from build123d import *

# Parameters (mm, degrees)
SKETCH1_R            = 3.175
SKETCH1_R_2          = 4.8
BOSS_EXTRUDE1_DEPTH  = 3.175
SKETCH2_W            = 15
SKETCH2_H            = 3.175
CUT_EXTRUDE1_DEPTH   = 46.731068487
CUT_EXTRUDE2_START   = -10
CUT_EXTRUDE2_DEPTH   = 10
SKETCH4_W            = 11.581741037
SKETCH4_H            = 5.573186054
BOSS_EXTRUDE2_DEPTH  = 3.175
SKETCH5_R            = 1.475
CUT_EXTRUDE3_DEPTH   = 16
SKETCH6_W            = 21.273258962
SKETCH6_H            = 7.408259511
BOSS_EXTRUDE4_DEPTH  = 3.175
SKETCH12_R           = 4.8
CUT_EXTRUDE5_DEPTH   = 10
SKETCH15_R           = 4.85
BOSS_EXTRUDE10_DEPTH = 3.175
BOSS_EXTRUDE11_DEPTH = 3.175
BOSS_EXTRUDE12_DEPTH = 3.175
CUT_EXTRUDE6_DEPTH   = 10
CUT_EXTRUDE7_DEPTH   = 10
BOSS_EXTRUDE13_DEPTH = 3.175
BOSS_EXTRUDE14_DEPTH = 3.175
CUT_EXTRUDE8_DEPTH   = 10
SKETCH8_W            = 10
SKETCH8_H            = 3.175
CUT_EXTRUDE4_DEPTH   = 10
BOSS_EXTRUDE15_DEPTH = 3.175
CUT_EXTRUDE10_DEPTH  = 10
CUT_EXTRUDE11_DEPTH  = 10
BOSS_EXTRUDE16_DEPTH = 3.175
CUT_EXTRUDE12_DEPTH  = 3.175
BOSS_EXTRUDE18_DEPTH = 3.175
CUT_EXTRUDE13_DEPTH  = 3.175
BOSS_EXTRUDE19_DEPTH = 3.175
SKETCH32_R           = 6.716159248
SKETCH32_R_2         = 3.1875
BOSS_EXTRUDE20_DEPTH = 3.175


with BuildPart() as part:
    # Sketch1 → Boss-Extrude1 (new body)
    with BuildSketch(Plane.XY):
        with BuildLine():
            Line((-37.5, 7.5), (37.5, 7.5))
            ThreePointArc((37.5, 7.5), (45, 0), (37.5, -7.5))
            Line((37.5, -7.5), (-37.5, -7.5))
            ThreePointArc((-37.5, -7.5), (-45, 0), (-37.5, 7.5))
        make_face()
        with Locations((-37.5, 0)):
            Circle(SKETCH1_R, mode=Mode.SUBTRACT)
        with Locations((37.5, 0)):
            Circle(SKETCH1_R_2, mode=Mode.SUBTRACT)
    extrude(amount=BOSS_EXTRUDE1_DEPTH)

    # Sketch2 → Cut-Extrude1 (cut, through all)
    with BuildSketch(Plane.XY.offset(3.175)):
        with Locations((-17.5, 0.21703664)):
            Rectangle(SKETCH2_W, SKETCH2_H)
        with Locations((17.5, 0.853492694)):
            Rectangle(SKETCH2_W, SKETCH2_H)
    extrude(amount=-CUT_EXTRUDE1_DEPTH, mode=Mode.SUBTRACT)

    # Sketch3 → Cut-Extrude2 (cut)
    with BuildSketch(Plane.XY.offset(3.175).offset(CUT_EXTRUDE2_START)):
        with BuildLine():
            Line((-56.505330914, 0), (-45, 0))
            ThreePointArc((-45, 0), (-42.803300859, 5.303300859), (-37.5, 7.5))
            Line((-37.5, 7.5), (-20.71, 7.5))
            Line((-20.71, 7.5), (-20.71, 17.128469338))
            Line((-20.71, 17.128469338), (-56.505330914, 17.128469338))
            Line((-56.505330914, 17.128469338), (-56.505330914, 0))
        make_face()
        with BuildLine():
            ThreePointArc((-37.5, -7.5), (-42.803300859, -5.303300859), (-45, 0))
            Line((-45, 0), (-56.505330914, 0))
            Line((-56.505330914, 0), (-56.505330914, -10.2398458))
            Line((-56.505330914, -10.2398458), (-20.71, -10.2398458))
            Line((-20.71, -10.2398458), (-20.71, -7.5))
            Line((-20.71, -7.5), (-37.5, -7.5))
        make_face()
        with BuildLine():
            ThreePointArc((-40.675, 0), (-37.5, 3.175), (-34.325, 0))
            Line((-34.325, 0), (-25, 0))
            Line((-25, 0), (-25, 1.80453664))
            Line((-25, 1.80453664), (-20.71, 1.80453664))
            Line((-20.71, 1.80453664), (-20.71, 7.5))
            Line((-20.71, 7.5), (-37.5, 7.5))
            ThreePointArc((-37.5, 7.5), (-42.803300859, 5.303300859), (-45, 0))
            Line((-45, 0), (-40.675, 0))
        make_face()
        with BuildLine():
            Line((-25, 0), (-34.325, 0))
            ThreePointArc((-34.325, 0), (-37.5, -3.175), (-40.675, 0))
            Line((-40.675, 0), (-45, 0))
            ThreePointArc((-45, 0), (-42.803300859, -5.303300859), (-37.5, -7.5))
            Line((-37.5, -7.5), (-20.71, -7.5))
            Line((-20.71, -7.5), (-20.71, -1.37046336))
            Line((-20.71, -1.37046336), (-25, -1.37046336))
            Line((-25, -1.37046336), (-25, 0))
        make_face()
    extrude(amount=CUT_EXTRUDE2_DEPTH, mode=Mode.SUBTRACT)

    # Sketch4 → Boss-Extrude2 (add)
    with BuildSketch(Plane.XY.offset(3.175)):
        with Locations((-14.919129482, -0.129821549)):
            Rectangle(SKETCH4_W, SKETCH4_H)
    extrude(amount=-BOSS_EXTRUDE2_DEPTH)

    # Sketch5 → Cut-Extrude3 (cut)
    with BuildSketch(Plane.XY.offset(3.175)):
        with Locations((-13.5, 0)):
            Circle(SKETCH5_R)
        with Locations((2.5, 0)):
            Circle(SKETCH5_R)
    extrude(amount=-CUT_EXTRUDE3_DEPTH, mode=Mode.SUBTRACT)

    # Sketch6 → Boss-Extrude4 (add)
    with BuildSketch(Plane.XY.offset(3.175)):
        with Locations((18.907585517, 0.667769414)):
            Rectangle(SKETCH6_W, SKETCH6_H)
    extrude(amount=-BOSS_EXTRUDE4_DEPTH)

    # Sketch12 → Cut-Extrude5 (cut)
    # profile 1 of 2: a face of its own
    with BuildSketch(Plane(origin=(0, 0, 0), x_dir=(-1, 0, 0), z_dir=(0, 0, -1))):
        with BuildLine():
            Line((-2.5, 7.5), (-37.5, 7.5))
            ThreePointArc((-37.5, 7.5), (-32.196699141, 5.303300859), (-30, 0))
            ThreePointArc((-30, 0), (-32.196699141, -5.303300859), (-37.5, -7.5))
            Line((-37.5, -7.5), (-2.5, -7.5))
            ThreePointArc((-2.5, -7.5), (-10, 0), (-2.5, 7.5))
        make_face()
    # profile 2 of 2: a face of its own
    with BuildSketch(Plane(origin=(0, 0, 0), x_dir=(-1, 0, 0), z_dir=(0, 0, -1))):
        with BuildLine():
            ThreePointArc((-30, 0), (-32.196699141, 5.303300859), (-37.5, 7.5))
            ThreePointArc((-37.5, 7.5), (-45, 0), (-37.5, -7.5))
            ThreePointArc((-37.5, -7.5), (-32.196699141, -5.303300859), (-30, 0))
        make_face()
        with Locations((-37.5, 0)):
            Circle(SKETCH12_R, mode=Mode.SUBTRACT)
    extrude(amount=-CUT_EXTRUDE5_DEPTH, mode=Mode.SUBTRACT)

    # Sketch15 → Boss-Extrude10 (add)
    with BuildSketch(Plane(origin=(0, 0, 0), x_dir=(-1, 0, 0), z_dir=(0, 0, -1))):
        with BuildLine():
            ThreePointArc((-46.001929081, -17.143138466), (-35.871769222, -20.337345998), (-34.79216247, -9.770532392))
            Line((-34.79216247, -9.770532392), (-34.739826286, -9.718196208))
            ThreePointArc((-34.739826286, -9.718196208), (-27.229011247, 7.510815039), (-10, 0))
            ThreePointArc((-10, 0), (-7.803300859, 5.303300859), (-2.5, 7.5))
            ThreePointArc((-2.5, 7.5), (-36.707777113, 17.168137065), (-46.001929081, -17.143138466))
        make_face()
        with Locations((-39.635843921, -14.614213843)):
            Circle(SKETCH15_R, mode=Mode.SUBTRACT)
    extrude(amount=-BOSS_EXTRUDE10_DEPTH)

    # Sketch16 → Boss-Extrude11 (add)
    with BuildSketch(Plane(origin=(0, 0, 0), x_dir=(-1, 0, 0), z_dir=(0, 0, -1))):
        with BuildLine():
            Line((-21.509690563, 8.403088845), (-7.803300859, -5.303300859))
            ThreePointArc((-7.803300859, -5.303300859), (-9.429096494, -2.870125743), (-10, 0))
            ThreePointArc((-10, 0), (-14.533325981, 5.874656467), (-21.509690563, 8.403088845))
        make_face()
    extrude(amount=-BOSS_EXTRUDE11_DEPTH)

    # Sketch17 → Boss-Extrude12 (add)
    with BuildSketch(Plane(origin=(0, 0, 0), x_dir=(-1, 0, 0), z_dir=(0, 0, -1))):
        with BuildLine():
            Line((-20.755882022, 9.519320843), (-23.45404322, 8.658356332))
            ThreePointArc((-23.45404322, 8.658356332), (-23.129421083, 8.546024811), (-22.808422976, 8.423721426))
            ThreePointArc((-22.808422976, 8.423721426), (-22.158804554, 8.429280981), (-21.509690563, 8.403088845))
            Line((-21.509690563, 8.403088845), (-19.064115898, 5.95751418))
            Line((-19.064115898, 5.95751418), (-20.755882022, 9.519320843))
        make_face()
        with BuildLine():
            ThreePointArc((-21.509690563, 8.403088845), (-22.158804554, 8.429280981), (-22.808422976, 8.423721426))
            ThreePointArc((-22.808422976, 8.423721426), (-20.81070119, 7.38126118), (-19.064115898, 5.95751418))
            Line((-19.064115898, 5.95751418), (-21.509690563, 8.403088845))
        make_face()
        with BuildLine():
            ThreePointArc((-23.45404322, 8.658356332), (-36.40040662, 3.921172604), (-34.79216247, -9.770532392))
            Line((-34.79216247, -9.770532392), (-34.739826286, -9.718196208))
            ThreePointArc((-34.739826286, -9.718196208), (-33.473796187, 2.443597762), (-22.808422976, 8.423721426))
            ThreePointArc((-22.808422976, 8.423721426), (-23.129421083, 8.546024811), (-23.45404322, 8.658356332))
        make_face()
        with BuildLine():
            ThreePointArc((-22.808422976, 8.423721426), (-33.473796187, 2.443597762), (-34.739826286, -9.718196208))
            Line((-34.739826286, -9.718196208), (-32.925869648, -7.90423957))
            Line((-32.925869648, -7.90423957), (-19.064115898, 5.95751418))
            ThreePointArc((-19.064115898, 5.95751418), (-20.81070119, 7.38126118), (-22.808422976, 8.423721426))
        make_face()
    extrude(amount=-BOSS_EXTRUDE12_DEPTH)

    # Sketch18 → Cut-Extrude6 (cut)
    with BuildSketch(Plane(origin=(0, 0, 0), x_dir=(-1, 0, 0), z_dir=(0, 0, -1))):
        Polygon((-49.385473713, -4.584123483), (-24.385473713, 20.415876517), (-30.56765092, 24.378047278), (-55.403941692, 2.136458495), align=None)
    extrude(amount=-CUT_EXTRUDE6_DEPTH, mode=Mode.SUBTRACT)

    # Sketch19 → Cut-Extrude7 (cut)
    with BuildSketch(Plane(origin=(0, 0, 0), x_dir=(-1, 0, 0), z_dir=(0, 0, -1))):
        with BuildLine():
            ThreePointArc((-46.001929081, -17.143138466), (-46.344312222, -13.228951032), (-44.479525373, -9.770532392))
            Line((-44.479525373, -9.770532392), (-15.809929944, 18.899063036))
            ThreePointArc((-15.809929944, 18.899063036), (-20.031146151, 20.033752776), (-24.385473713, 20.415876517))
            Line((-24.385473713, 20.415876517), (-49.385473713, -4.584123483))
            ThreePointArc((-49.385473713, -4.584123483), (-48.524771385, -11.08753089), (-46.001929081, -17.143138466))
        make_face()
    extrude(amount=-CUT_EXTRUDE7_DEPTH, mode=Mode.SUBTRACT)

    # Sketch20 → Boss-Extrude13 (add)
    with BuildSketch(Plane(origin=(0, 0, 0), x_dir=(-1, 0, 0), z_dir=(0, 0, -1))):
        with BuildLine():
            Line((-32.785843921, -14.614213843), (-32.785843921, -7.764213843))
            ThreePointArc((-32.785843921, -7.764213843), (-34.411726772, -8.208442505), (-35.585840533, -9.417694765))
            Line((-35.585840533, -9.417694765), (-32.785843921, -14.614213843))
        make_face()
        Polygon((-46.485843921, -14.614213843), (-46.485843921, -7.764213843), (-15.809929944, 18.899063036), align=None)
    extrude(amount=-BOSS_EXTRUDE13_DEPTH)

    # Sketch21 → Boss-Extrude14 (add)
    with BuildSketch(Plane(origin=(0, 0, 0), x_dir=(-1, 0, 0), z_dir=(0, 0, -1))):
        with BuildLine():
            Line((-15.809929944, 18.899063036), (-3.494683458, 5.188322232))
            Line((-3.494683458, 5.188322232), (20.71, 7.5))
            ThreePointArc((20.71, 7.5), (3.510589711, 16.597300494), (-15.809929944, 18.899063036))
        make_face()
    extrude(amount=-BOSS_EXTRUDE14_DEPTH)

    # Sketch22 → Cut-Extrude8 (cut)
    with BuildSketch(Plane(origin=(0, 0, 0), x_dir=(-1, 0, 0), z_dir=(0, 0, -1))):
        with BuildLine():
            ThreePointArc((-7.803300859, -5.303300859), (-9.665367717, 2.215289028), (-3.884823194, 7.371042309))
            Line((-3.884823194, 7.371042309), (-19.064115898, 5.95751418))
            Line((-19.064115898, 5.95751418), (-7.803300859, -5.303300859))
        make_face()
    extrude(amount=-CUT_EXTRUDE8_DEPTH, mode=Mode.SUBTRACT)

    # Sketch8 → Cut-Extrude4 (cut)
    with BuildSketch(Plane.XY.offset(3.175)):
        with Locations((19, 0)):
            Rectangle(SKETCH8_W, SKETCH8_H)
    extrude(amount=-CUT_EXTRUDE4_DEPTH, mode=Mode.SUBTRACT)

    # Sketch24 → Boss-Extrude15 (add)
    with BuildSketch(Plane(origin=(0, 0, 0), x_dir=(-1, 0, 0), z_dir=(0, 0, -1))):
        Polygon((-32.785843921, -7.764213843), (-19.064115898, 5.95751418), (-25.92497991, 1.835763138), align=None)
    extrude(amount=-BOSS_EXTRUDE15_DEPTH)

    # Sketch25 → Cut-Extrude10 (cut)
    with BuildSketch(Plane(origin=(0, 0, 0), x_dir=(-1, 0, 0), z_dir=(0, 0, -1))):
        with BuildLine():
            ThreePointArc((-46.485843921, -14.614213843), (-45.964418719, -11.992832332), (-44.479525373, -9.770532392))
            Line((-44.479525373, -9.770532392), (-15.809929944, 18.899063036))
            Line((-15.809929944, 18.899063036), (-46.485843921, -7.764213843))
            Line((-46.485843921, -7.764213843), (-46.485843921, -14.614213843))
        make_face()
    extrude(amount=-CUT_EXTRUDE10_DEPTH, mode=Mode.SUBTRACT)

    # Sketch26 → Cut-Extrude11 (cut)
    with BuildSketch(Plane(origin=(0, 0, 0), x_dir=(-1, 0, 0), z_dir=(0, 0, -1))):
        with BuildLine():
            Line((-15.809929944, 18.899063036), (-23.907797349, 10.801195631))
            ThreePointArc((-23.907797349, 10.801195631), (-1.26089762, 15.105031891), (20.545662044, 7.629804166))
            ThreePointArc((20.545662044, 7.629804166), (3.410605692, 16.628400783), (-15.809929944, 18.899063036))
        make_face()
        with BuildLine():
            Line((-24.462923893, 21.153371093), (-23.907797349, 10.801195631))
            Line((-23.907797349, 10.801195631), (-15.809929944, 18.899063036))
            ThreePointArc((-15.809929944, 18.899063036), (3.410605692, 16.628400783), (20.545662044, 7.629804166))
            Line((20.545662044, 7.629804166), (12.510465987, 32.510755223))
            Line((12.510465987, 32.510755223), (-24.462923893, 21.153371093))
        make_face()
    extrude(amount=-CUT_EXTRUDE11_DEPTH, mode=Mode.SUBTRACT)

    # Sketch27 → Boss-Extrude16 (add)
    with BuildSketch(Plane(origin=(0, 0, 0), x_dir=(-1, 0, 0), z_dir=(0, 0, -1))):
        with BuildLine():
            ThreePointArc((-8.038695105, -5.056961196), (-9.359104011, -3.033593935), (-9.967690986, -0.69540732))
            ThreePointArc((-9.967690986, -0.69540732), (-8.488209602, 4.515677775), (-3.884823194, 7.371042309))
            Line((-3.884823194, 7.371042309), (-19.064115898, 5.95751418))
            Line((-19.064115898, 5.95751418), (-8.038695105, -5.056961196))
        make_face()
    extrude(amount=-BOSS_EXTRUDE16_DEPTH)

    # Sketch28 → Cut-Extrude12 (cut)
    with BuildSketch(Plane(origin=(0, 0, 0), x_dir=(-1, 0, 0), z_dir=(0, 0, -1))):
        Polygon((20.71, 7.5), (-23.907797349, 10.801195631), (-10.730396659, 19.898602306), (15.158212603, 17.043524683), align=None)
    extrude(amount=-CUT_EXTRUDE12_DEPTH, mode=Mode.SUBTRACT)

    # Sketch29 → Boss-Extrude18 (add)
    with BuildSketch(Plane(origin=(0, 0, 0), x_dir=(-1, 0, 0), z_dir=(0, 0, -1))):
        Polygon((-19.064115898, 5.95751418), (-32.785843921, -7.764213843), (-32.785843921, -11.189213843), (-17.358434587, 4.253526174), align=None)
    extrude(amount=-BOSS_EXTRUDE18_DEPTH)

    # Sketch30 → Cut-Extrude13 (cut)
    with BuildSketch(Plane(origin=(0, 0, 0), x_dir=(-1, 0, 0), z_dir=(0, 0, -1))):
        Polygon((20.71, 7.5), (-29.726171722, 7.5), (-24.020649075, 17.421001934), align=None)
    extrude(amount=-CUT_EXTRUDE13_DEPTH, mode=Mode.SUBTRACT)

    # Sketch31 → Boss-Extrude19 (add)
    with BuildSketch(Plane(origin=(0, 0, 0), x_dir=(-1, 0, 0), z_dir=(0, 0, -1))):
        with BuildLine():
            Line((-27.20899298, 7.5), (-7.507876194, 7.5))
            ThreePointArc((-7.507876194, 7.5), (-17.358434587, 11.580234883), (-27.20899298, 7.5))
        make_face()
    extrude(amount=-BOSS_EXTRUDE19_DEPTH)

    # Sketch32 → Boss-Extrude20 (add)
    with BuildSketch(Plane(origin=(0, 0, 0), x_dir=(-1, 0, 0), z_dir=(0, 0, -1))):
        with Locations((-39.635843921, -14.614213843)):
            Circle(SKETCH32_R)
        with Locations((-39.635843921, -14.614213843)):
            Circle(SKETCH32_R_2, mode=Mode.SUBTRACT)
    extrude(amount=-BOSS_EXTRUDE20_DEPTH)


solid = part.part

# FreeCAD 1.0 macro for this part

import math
import FreeCAD as App
import Part
import Sketcher
from FreeCAD import Vector
Q = App.Units.Quantity


def add_polygon(sketch, points):
    """Adds a closed chain of lines whose ends are joined by coincident constraints."""
    first, n = sketch.GeometryCount, len(points)
    for a, b in zip(points, points[1:] + points[:1]):
        sketch.addGeometry(Part.LineSegment(App.Vector(*a, 0), App.Vector(*b, 0)), False)
    for i in range(n):
        sketch.addConstraint(Sketcher.Constraint("Coincident", first + i, 2, first + (i + 1) % n, 1))

doc = App.newDocument("Part")
body = doc.addObject("PartDesign::Body", "Body")

# Sketch on XY plane
sketch1 = body.newObject("Sketcher::SketchObject", "Sketch")
sketch1.AttachmentSupport = (doc.getObject("XY_Plane"), [""])
sketch1.MapMode = "FlatFace"
sketch1.addGeometry(Part.LineSegment(Vector(37.5, 7.5, 0), Vector(-37.5, 7.5, 0)), False)
sketch1.addGeometry(Part.ArcOfCircle(Part.Circle(Vector(-37.5, 0, 0), Vector(0, 0, 1), 7.5), math.radians(90), math.radians(270)), False)
sketch1.addGeometry(Part.LineSegment(Vector(-37.5, -7.5, 0), Vector(37.5, -7.5, 0)), False)
sketch1.addGeometry(Part.ArcOfCircle(Part.Circle(Vector(37.5, 0, 0), Vector(0, 0, 1), 7.5), math.radians(-90), math.radians(90)), False)
sketch1.addGeometry(Part.Circle(Vector(37.5, 0, 0), Vector(0, 0, 1), 4.8), False)
sketch1.addGeometry(Part.Circle(Vector(-37.5, 0, 0), Vector(0, 0, 1), 3.175), False)
sketch1.addConstraint(Sketcher.Constraint("Tangent", 0, 2, 1, 1))
sketch1.addConstraint(Sketcher.Constraint("Tangent", 1, 2, 2, 1))
sketch1.addConstraint(Sketcher.Constraint("Tangent", 2, 2, 3, 1))
sketch1.addConstraint(Sketcher.Constraint("Tangent", 3, 2, 0, 1))
sketch1.addConstraint(Sketcher.Constraint("Horizontal", 0))
sketch1.addConstraint(Sketcher.Constraint("Horizontal", 2))
sketch1.addConstraint(Sketcher.Constraint("Coincident", 4, 3, 3, 3))
sketch1.addConstraint(Sketcher.Constraint("Coincident", 5, 3, 1, 3))
sketch1.addConstraint(Sketcher.Constraint("Symmetric", 1, 3, 3, 3, -1, 1))
sketch1.addConstraint(Sketcher.Constraint("Diameter", 4, 9.6))
sketch1.addConstraint(Sketcher.Constraint("Radius", 1, 7.5))
sketch1.addConstraint(Sketcher.Constraint("Diameter", 5, 6.35))
sketch1.addConstraint(Sketcher.Constraint("DistanceX", 0, 2, 0, 1, 75.0))
pad1 = body.newObject("PartDesign::Pad", "Pad")
pad1.Profile = sketch1
pad1.Length = 3.175

# Sketch on XY plane
sketch2 = body.newObject("Sketcher::SketchObject", "Sketch001")
sketch2.AttachmentSupport = (doc.getObject("XY_Plane"), [""])
sketch2.MapMode = "FlatFace"
sketch2.AttachmentOffset = App.Placement(Vector(0, 0, 3.175), App.Rotation())
add_polygon(sketch2, [(-25, 1.804537), (-25, -1.370463), (-10, -1.370463), (-10, 1.804537)])  # lines 0-3
add_polygon(sketch2, [(10, 2.440993), (10, -0.734007), (25, -0.734007), (25, 2.440993)])  # lines 4-7
sketch2.addConstraint(Sketcher.Constraint("Vertical", 0))
sketch2.addConstraint(Sketcher.Constraint("Horizontal", 1))
sketch2.addConstraint(Sketcher.Constraint("Vertical", 2))
sketch2.addConstraint(Sketcher.Constraint("Horizontal", 3))
sketch2.addConstraint(Sketcher.Constraint("Vertical", 4))
sketch2.addConstraint(Sketcher.Constraint("Horizontal", 5))
sketch2.addConstraint(Sketcher.Constraint("Vertical", 6))
sketch2.addConstraint(Sketcher.Constraint("Horizontal", 7))
sketch2.addConstraint(Sketcher.Constraint("Equal", 3, 5))
sketch2.addConstraint(Sketcher.Constraint("Equal", 2, 4))
sketch2.addConstraint(Sketcher.Constraint("DistanceX", 1, 1, 1, 2, 15.0))
sketch2.addConstraint(Sketcher.Constraint("DistanceX", 0, 2, -1, 1, 25.0))
sketch2.addConstraint(Sketcher.Constraint("DistanceX", -1, 1, 4, 2, 10.0))
sketch2.addConstraint(Sketcher.Constraint("DistanceY", 0, 2, 0, 1, 3.175))
sketch2.addConstraint(Sketcher.Constraint("DistanceY", 0, 2, -1, 1, 1.370463))
sketch2.addConstraint(Sketcher.Constraint("DistanceY", 4, 2, -1, 1, 0.734007))
pocket1 = body.newObject("PartDesign::Pocket", "Pocket")
pocket1.Profile = sketch2
pocket1.Type = "ThroughAll"

# Sketch on XY plane
sketch3 = body.newObject("Sketcher::SketchObject", "Sketch002")
sketch3.AttachmentSupport = (doc.getObject("XY_Plane"), [""])
sketch3.MapMode = "FlatFace"
sketch3.AttachmentOffset = App.Placement(Vector(0, 0, -6.825), App.Rotation())
add_polygon(sketch3, [(-20.71, 17.128469), (-56.505331, 17.128469), (-56.505331, -10.239846), (-20.71, -10.239846), (-20.71, -1.370463), (-25, -1.370463), (-25, 1.804537), (-20.71, 1.804537)])  # lines 0-7
sketch3.addGeometry(Part.Circle(Vector(-37.5, 0, 0), Vector(0, 0, 1), 3.175), False)  # 8
sketch3.addConstraint(Sketcher.Constraint("Horizontal", 0))
sketch3.addConstraint(Sketcher.Constraint("Vertical", 1))
sketch3.addConstraint(Sketcher.Constraint("Horizontal", 2))
sketch3.addConstraint(Sketcher.Constraint("Vertical", 3))
sketch3.addConstraint(Sketcher.Constraint("Horizontal", 4))
sketch3.addConstraint(Sketcher.Constraint("Vertical", 5))
sketch3.addConstraint(Sketcher.Constraint("Horizontal", 6))
sketch3.addConstraint(Sketcher.Constraint("Vertical", 7))
sketch3.addConstraint(Sketcher.Constraint("PointOnObject", 8, 3, -1))
sketch3.addConstraint(Sketcher.Constraint("Vertical", 3, 2, 6, 2))
sketch3.addConstraint(Sketcher.Constraint("Diameter", 8, 6.35))
sketch3.addConstraint(Sketcher.Constraint("DistanceX", 4, 2, -1, 1, 25.0))
sketch3.addConstraint(Sketcher.Constraint("DistanceX", 4, 2, 4, 1, 4.29))
sketch3.addConstraint(Sketcher.Constraint("DistanceX", 8, 3, -1, 1, 37.5))
sketch3.addConstraint(Sketcher.Constraint("DistanceY", 5, 1, 5, 2, 3.175))
sketch3.addConstraint(Sketcher.Constraint("DistanceX", 0, 2, 0, 1, 35.795331))
sketch3.addConstraint(Sketcher.Constraint("DistanceY", 1, 2, 1, 1, 27.368315))
sketch3.addConstraint(Sketcher.Constraint("DistanceY", 3, 1, 3, 2, 8.869382))
sketch3.addConstraint(Sketcher.Constraint("DistanceY", -1, 1, 0, 2, 17.128469))
pocket2 = body.newObject("PartDesign::Pocket", "Pocket001")
pocket2.Profile = sketch3
pocket2.Length = 10
pocket2.Reversed = True

# Sketch on XY plane
sketch4 = body.newObject("Sketcher::SketchObject", "Sketch003")
sketch4.AttachmentSupport = (doc.getObject("XY_Plane"), [""])
sketch4.MapMode = "FlatFace"
sketch4.AttachmentOffset = App.Placement(Vector(0, 0, 3.175), App.Rotation())
add_polygon(sketch4, [(-20.71, 2.656771), (-20.71, -2.916415), (-9.128259, -2.916415), (-9.128259, 2.656771)])  # lines 0-3
sketch4.addConstraint(Sketcher.Constraint("Vertical", 0))
sketch4.addConstraint(Sketcher.Constraint("Horizontal", 1))
sketch4.addConstraint(Sketcher.Constraint("Vertical", 2))
sketch4.addConstraint(Sketcher.Constraint("Horizontal", 3))
sketch4.addConstraint(Sketcher.Constraint("DistanceX", 0, 2, -1, 1, 20.71))
sketch4.addConstraint(Sketcher.Constraint("DistanceX", 1, 1, 1, 2, 11.581741))
sketch4.addConstraint(Sketcher.Constraint("DistanceY", 0, 2, 0, 1, 5.573186))
sketch4.addConstraint(Sketcher.Constraint("DistanceY", -1, 1, 2, 2, 2.656771))
pad2 = body.newObject("PartDesign::Pad", "Pad001")
pad2.Profile = sketch4
pad2.Length = 3.175
pad2.Reversed = True

# Sketch on XY plane
sketch5 = body.newObject("Sketcher::SketchObject", "Sketch004")
sketch5.AttachmentSupport = (doc.getObject("XY_Plane"), [""])
sketch5.MapMode = "FlatFace"
sketch5.AttachmentOffset = App.Placement(Vector(0, 0, 3.175), App.Rotation())
sketch5.addGeometry(Part.Circle(Vector(-13.5, 0, 0), Vector(0, 0, 1), 1.475), False)
sketch5.addGeometry(Part.Circle(Vector(2.5, 0, 0), Vector(0, 0, 1), 1.475), False)
sketch5.addConstraint(Sketcher.Constraint("Equal", 0, 1))
sketch5.addConstraint(Sketcher.Constraint("PointOnObject", 0, 3, -1))
sketch5.addConstraint(Sketcher.Constraint("PointOnObject", 1, 3, -1))
sketch5.addConstraint(Sketcher.Constraint("Diameter", 0, 2.95))
sketch5.addConstraint(Sketcher.Constraint("DistanceX", 0, 3, 1, 3, 16.0))
sketch5.addConstraint(Sketcher.Constraint("DistanceX", 0, 3, -1, 1, 13.5))
pocket3 = body.newObject("PartDesign::Pocket", "Pocket002")
pocket3.Profile = sketch5
pocket3.Length = 16

# Sketch on XY plane
sketch6 = body.newObject("Sketcher::SketchObject", "Sketch005")
sketch6.AttachmentSupport = (doc.getObject("XY_Plane"), [""])
sketch6.MapMode = "FlatFace"
sketch6.AttachmentOffset = App.Placement(Vector(0, 0, 3.175), App.Rotation())
add_polygon(sketch6, [(8.270956, 4.371899), (8.270956, -3.03636), (29.544215, -3.03636), (29.544215, 4.371899)])  # lines 0-3
sketch6.addConstraint(Sketcher.Constraint("Vertical", 0))
sketch6.addConstraint(Sketcher.Constraint("Horizontal", 1))
sketch6.addConstraint(Sketcher.Constraint("Vertical", 2))
sketch6.addConstraint(Sketcher.Constraint("Horizontal", 3))
sketch6.addConstraint(Sketcher.Constraint("DistanceX", 1, 1, 1, 2, 21.273259))
sketch6.addConstraint(Sketcher.Constraint("DistanceY", 0, 2, 0, 1, 7.40826))
sketch6.addConstraint(Sketcher.Constraint("DistanceY", -1, 1, 2, 2, 4.371899))
sketch6.addConstraint(Sketcher.Constraint("DistanceX", -1, 1, 0, 2, 8.270956))
pad3 = body.newObject("PartDesign::Pad", "Pad002")
pad3.Profile = sketch6
pad3.Length = 3.175
pad3.Reversed = True

# Sketch on XY plane
sketch7 = body.newObject("Sketcher::SketchObject", "Sketch006")
sketch7.AttachmentSupport = (doc.getObject("XY_Plane"), [""])
sketch7.MapMode = "FlatFace"
sketch7.addGeometry(Part.LineSegment(Vector(2.5, 7.5, 0), Vector(37.5, 7.5, 0)), False)
sketch7.addGeometry(Part.ArcOfCircle(Part.Circle(Vector(37.5, 0, 0), Vector(0, 0, 1), 7.5), math.radians(-90), math.radians(90)), False)
sketch7.addGeometry(Part.LineSegment(Vector(37.5, -7.5, 0), Vector(2.5, -7.5, 0)), False)
sketch7.addGeometry(Part.ArcOfCircle(Part.Circle(Vector(2.5, 0, 0), Vector(0, 0, 1), 7.5), math.radians(-90), math.radians(90)), False)
sketch7.addGeometry(Part.Circle(Vector(37.5, 0, 0), Vector(0, 0, 1), 4.8), False)
sketch7.addConstraint(Sketcher.Constraint("Tangent", 0, 2, 1, 2))
sketch7.addConstraint(Sketcher.Constraint("Tangent", 1, 1, 2, 1))
sketch7.addConstraint(Sketcher.Constraint("Tangent", 2, 2, 3, 1))
sketch7.addConstraint(Sketcher.Constraint("Tangent", 3, 2, 0, 1))
sketch7.addConstraint(Sketcher.Constraint("Horizontal", 0))
sketch7.addConstraint(Sketcher.Constraint("Horizontal", 2))
sketch7.addConstraint(Sketcher.Constraint("Coincident", 4, 3, 1, 3))
sketch7.addConstraint(Sketcher.Constraint("PointOnObject", 1, 3, -1))
sketch7.addConstraint(Sketcher.Constraint("Diameter", 4, 9.6))
sketch7.addConstraint(Sketcher.Constraint("Radius", 1, 7.5))
sketch7.addConstraint(Sketcher.Constraint("DistanceX", 0, 1, 0, 2, 35.0))
sketch7.addConstraint(Sketcher.Constraint("DistanceX", -1, 1, 1, 3, 37.5))
pocket4 = body.newObject("PartDesign::Pocket", "Pocket003")
pocket4.Profile = sketch7
pocket4.Length = 10
pocket4.Reversed = True

# Sketch on XY plane
sketch8 = body.newObject("Sketcher::SketchObject", "Sketch007")
sketch8.AttachmentSupport = (doc.getObject("XY_Plane"), [""])
sketch8.MapMode = "FlatFace"
sketch8.addGeometry(Part.ArcOfCircle(Part.Circle(Vector(39.635844, -14.614214, 0), Vector(0, 0, 1), 6.85), math.radians(135), math.radians(338.334571)), False)
sketch8.addGeometry(Part.LineSegment(Vector(34.792162, -9.770532, 0), Vector(34.739826, -9.718196, 0)), False)
sketch8.addGeometry(Part.ArcOfCircle(Part.Circle(Vector(22.369913, -4.859098, 0), Vector(0, 0, 1), 13.290056), math.radians(-21.445687), math.radians(158.554313)), False)
sketch8.addGeometry(Part.ArcOfCircle(Part.Circle(Vector(2.5, 0, 0), Vector(0, 0, 1), 7.5), math.radians(0), math.radians(90)), False)
sketch8.addGeometry(Part.ArcOfCircle(Part.Circle(Vector(24.385474, -4.584123, 0), Vector(0, 0, 1), 25), math.radians(-30.156299), math.radians(151.094597)), False)
sketch8.addGeometry(Part.Circle(Vector(39.635844, -14.614214, 0), Vector(0, 0, 1), 4.85), False)
sketch8.addConstraint(Sketcher.Constraint("Coincident", 0, 1, 1, 1))
sketch8.addConstraint(Sketcher.Constraint("Coincident", 1, 2, 2, 1))
sketch8.addConstraint(Sketcher.Constraint("Coincident", 2, 2, 3, 1))
sketch8.addConstraint(Sketcher.Constraint("Coincident", 3, 2, 4, 2))
sketch8.addConstraint(Sketcher.Constraint("Coincident", 4, 1, 0, 2))
sketch8.addConstraint(Sketcher.Constraint("Coincident", 5, 3, 0, 3))
sketch8.addConstraint(Sketcher.Constraint("PointOnObject", 3, 3, -1))
sketch8.addConstraint(Sketcher.Constraint("PointOnObject", 2, 2, -1))
sketch8.addConstraint(Sketcher.Constraint("Radius", 4, 25.0))
sketch8.addConstraint(Sketcher.Constraint("Diameter", 5, 9.7))
sketch8.addConstraint(Sketcher.Constraint("Radius", 3, 7.5))
sketch8.addConstraint(Sketcher.Constraint("Angle", 1, Q("135 deg")))
sketch8.addConstraint(Sketcher.Constraint("Radius", 0, 6.85))
sketch8.addConstraint(Sketcher.Constraint("DistanceX", -1, 1, 2, 2, 10.0))
sketch8.addConstraint(Sketcher.Constraint("DistanceX", -1, 1, 3, 2, 2.5))
sketch8.addConstraint(Sketcher.Constraint("Radius", 2, 13.290056))
sketch8.addConstraint(Sketcher.Constraint("DistanceY", 2, 3, -1, 1, 4.859098))
sketch8.addConstraint(Sketcher.Constraint("DistanceY", 1, 2, 2, 3, 4.859098))
sketch8.addConstraint(Sketcher.Constraint("DistanceX", -1, 1, 4, 1, 46.001929))
sketch8.addConstraint(Sketcher.Constraint("DistanceY", 4, 1, -1, 1, 17.143138))
sketch8.addConstraint(Sketcher.Constraint("DistanceX", 2, 3, 0, 3, 17.265931))
pad4 = body.newObject("PartDesign::Pad", "Pad003")
pad4.Profile = sketch8
pad4.Length = 3.175

# Sketch on XY plane
sketch9 = body.newObject("Sketcher::SketchObject", "Sketch008")
sketch9.AttachmentSupport = (doc.getObject("XY_Plane"), [""])
sketch9.MapMode = "FlatFace"
sketch9.addGeometry(Part.LineSegment(Vector(21.509691, 8.403089, 0), Vector(7.803301, -5.303301, 0)), False)
sketch9.addGeometry(Part.ArcOfCircle(Part.Circle(Vector(2.5, 0, 0), Vector(0, 0, 1), 7.5), math.radians(-45), math.radians(0)), False)
sketch9.addGeometry(Part.ArcOfCircle(Part.Circle(Vector(22.369913, -4.859098, 0), Vector(0, 0, 1), 13.290056), math.radians(93.711166), math.radians(158.554313)), False)
sketch9.addConstraint(Sketcher.Constraint("Tangent", 0, 2, 1, 1))
sketch9.addConstraint(Sketcher.Constraint("Coincident", 1, 2, 2, 2))
sketch9.addConstraint(Sketcher.Constraint("Coincident", 2, 1, 0, 1))
sketch9.addConstraint(Sketcher.Constraint("PointOnObject", 1, 3, -1))
sketch9.addConstraint(Sketcher.Constraint("PointOnObject", 1, 2, -1))
sketch9.addConstraint(Sketcher.Constraint("Radius", 1, 7.5))
sketch9.addConstraint(Sketcher.Constraint("Angle", 0, Q("-135 deg")))
sketch9.addConstraint(Sketcher.Constraint("DistanceX", -1, 1, 1, 2, 10.0))
sketch9.addConstraint(Sketcher.Constraint("Radius", 2, 13.290056))
sketch9.addConstraint(Sketcher.Constraint("DistanceY", 2, 3, -1, 1, 4.859098))
pad5 = body.newObject("PartDesign::Pad", "Pad004")
pad5.Profile = sketch9
pad5.Length = 3.175

# Sketch on XY plane
sketch10 = body.newObject("Sketcher::SketchObject", "Sketch009")
sketch10.AttachmentSupport = (doc.getObject("XY_Plane"), [""])
sketch10.MapMode = "FlatFace"
sketch10.addGeometry(Part.LineSegment(Vector(19.064116, 5.957514, 0), Vector(20.755882, 9.519321, 0)), False)
sketch10.addGeometry(Part.LineSegment(Vector(20.755882, 9.519321, 0), Vector(23.454043, 8.658356, 0)), False)
sketch10.addGeometry(Part.ArcOfCircle(Part.Circle(Vector(26.928139, -1.906509, 0), Vector(0, 0, 1), 11.121408), math.radians(-45), math.radians(108.202667)), False)
sketch10.addGeometry(Part.LineSegment(Vector(34.792162, -9.770532, 0), Vector(19.064116, 5.957514, 0)), False)
sketch10.addConstraint(Sketcher.Constraint("Coincident", 0, 2, 1, 1))
sketch10.addConstraint(Sketcher.Constraint("Coincident", 1, 2, 2, 2))
sketch10.addConstraint(Sketcher.Constraint("Coincident", 2, 1, 3, 1))
sketch10.addConstraint(Sketcher.Constraint("Coincident", 3, 2, 0, 1))
sketch10.addConstraint(Sketcher.Constraint("Angle", 3, Q("135 deg")))
sketch10.addConstraint(Sketcher.Constraint("Radius", 2, 11.121408))
sketch10.addConstraint(Sketcher.Constraint("DistanceX", -1, 1, 2, 3, 26.928139))
sketch10.addConstraint(Sketcher.Constraint("DistanceY", 2, 3, -1, 1, 1.906509))
sketch10.addConstraint(Sketcher.Constraint("DistanceY", -1, 1, 0, 2, 9.519321))
sketch10.addConstraint(Sketcher.Constraint("DistanceX", 0, 2, 1, 2, 2.698161))
sketch10.addConstraint(Sketcher.Constraint("DistanceX", 1, 2, 2, 1, 11.338119))
sketch10.addConstraint(Sketcher.Constraint("DistanceY", 2, 1, 1, 2, 18.428889))
sketch10.addConstraint(Sketcher.Constraint("Distance", 0, 3.943164))
pad6 = body.newObject("PartDesign::Pad", "Pad005")
pad6.Profile = sketch10
pad6.Length = 3.175

# Sketch on XY plane
sketch11 = body.newObject("Sketcher::SketchObject", "Sketch010")
sketch11.AttachmentSupport = (doc.getObject("XY_Plane"), [""])
sketch11.MapMode = "FlatFace"
add_polygon(sketch11, [(49.385474, -4.584123), (24.385474, 20.415877), (30.567651, 24.378047), (55.403942, 2.136458)])  # lines 0-3
sketch11.addConstraint(Sketcher.Constraint("Perpendicular", 2, 3))
sketch11.addConstraint(Sketcher.Constraint("Angle", 0, Q("135 deg")))
sketch11.addConstraint(Sketcher.Constraint("DistanceX", 0, 2, 3, 2, 25.0))
sketch11.addConstraint(Sketcher.Constraint("Distance", 2, 33.33961))
sketch11.addConstraint(Sketcher.Constraint("Distance", 3, 9.02154))
sketch11.addConstraint(Sketcher.Constraint("DistanceX", -1, 1, 1, 2, 30.567651))
sketch11.addConstraint(Sketcher.Constraint("DistanceX", -1, 1, 2, 2, 55.403942))
sketch11.addConstraint(Sketcher.Constraint("DistanceY", -1, 1, 2, 2, 2.136458))
pocket5 = body.newObject("PartDesign::Pocket", "Pocket004")
pocket5.Profile = sketch11
pocket5.Length = 10
pocket5.Reversed = True

# Sketch on XY plane
sketch12 = body.newObject("Sketcher::SketchObject", "Sketch011")
sketch12.AttachmentSupport = (doc.getObject("XY_Plane"), [""])
sketch12.MapMode = "FlatFace"
sketch12.addGeometry(Part.ArcOfCircle(Part.Circle(Vector(39.635844, -14.614214, 0), Vector(0, 0, 1), 6.85), math.radians(-21.665429), math.radians(45)), False)
sketch12.addGeometry(Part.LineSegment(Vector(44.479525, -9.770532, 0), Vector(15.80993, 18.899063, 0)), False)
sketch12.addGeometry(Part.ArcOfCircle(Part.Circle(Vector(24.385474, -4.584123, 0), Vector(0, 0, 1), 25), math.radians(90), math.radians(110.061083)), False)
sketch12.addGeometry(Part.LineSegment(Vector(24.385474, 20.415877, 0), Vector(49.385474, -4.584123, 0)), False)
sketch12.addGeometry(Part.ArcOfCircle(Part.Circle(Vector(24.385474, -4.584123, 0), Vector(0, 0, 1), 25), math.radians(-30.156299), math.radians(0)), False)
sketch12.addConstraint(Sketcher.Constraint("Tangent", 0, 2, 1, 1))
sketch12.addConstraint(Sketcher.Constraint("Coincident", 1, 2, 2, 2))
sketch12.addConstraint(Sketcher.Constraint("Coincident", 2, 1, 3, 1))
sketch12.addConstraint(Sketcher.Constraint("Coincident", 3, 2, 4, 2))
sketch12.addConstraint(Sketcher.Constraint("Coincident", 4, 1, 0, 1))
sketch12.addConstraint(Sketcher.Constraint("Coincident", 4, 3, 2, 3))
sketch12.addConstraint(Sketcher.Constraint("Equal", 2, 4))
sketch12.addConstraint(Sketcher.Constraint("Parallel", 1, 3))
sketch12.addConstraint(Sketcher.Constraint("Horizontal", 4, 3, 3, 2))
sketch12.addConstraint(Sketcher.Constraint("Vertical", 4, 3, 2, 1))
sketch12.addConstraint(Sketcher.Constraint("Radius", 2, 25.0))
sketch12.addConstraint(Sketcher.Constraint("Radius", 0, 6.85))
sketch12.addConstraint(Sketcher.Constraint("Distance", 1, 40.544931))
sketch12.addConstraint(Sketcher.Constraint("DistanceX", -1, 1, 1, 2, 15.80993))
sketch12.addConstraint(Sketcher.Constraint("DistanceX", -1, 1, 4, 1, 46.001929))
sketch12.addConstraint(Sketcher.Constraint("DistanceY", 4, 1, -1, 1, 17.143138))
pocket6 = body.newObject("PartDesign::Pocket", "Pocket005")
pocket6.Profile = sketch12
pocket6.Length = 10
pocket6.Reversed = True

# Sketch on XY plane
sketch13 = body.newObject("Sketcher::SketchObject", "Sketch012")
sketch13.AttachmentSupport = (doc.getObject("XY_Plane"), [""])
sketch13.MapMode = "FlatFace"
sketch13.addGeometry(Part.LineSegment(Vector(32.785844, -14.614214, 0), Vector(32.785844, -7.764214, 0)), False)  # 0
sketch13.addGeometry(Part.ArcOfCircle(Part.Circle(Vector(32.785844, -10.961705, 0), Vector(0, 0, 1), 3.197491), math.radians(28.873782), math.radians(90)), False)  # 1
sketch13.addGeometry(Part.LineSegment(Vector(35.585841, -9.417695, 0), Vector(32.785844, -14.614214, 0)), False)  # 2
add_polygon(sketch13, [(46.485844, -7.764214), (46.485844, -14.614214), (15.80993, 18.899063)])  # lines 3-5
sketch13.addConstraint(Sketcher.Constraint("Coincident", 0, 2, 1, 2))
sketch13.addConstraint(Sketcher.Constraint("Coincident", 1, 1, 2, 1))
sketch13.addConstraint(Sketcher.Constraint("Coincident", 2, 2, 0, 1))
sketch13.addConstraint(Sketcher.Constraint("Vertical", 0))
sketch13.addConstraint(Sketcher.Constraint("Vertical", 3))
sketch13.addConstraint(Sketcher.Constraint("Horizontal", 2, 2, 3, 2))
sketch13.addConstraint(Sketcher.Constraint("Horizontal", 0, 2, 5, 2))
sketch13.addConstraint(Sketcher.Constraint("Vertical", 1, 3, 0, 2))
sketch13.addConstraint(Sketcher.Constraint("DistanceY", 0, 1, 0, 2, 6.85))
sketch13.addConstraint(Sketcher.Constraint("DistanceX", 2, 2, 3, 2, 13.7))
sketch13.addConstraint(Sketcher.Constraint("Radius", 1, 3.197491))
sketch13.addConstraint(Sketcher.Constraint("Distance", 5, 40.64409))
sketch13.addConstraint(Sketcher.Constraint("DistanceX", -1, 1, 1, 1, 35.585841))
sketch13.addConstraint(Sketcher.Constraint("DistanceX", -1, 1, 4, 2, 15.80993))
sketch13.addConstraint(Sketcher.Constraint("DistanceY", 1, 3, 1, 1, 1.54401))
sketch13.addConstraint(Sketcher.Constraint("DistanceY", 1, 3, -1, 1, 10.961705))
pad7 = body.newObject("PartDesign::Pad", "Pad006")
pad7.Profile = sketch13
pad7.Length = 3.175

# Sketch on XY plane
sketch14 = body.newObject("Sketcher::SketchObject", "Sketch013")
sketch14.AttachmentSupport = (doc.getObject("XY_Plane"), [""])
sketch14.MapMode = "FlatFace"
sketch14.addGeometry(Part.LineSegment(Vector(15.80993, 18.899063, 0), Vector(3.494683, 5.188322, 0)), False)
sketch14.addGeometry(Part.LineSegment(Vector(3.494683, 5.188322, 0), Vector(-20.71, 7.5, 0)), False)
sketch14.addGeometry(Part.ArcOfCircle(Part.Circle(Vector(12.334626, -34.167062, 0), Vector(0, 0, 1), 53.179803), math.radians(86.253047), math.radians(128.41665)), False)
sketch14.addConstraint(Sketcher.Constraint("Coincident", 0, 2, 1, 1))
sketch14.addConstraint(Sketcher.Constraint("Coincident", 1, 2, 2, 2))
sketch14.addConstraint(Sketcher.Constraint("Coincident", 2, 1, 0, 1))
sketch14.addConstraint(Sketcher.Constraint("DistanceY", -1, 1, 1, 2, 7.5))
sketch14.addConstraint(Sketcher.Constraint("DistanceX", 1, 2, -1, 1, 20.71))
sketch14.addConstraint(Sketcher.Constraint("Radius", 2, 53.179803))
sketch14.addConstraint(Sketcher.Constraint("Distance", 1, 24.314822))
sketch14.addConstraint(Sketcher.Constraint("DistanceX", -1, 1, 2, 1, 15.80993))
sketch14.addConstraint(Sketcher.Constraint("DistanceY", 0, 2, 2, 1, 13.710741))
sketch14.addConstraint(Sketcher.Constraint("Distance", 0, 18.429588))
pad8 = body.newObject("PartDesign::Pad", "Pad007")
pad8.Profile = sketch14
pad8.Length = 3.175

# Sketch on XY plane
sketch15 = body.newObject("Sketcher::SketchObject", "Sketch014")
sketch15.AttachmentSupport = (doc.getObject("XY_Plane"), [""])
sketch15.MapMode = "FlatFace"
sketch15.addGeometry(Part.ArcOfCircle(Part.Circle(Vector(2.5, 0, 0), Vector(0, 0, 1), 7.5), math.radians(-45), math.radians(79.359675)), False)
sketch15.addGeometry(Part.LineSegment(Vector(3.884823, 7.371042, 0), Vector(19.064116, 5.957514, 0)), False)
sketch15.addGeometry(Part.LineSegment(Vector(19.064116, 5.957514, 0), Vector(7.803301, -5.303301, 0)), False)
sketch15.addConstraint(Sketcher.Constraint("Coincident", 0, 2, 1, 1))
sketch15.addConstraint(Sketcher.Constraint("Coincident", 1, 2, 2, 1))
sketch15.addConstraint(Sketcher.Constraint("Tangent", 2, 2, 0, 1))
sketch15.addConstraint(Sketcher.Constraint("PointOnObject", 0, 3, -1))
sketch15.addConstraint(Sketcher.Constraint("Radius", 0, 7.5))
sketch15.addConstraint(Sketcher.Constraint("Angle", 2, Q("-135 deg")))
sketch15.addConstraint(Sketcher.Constraint("DistanceX", -1, 1, 0, 3, 2.5))
sketch15.addConstraint(Sketcher.Constraint("DistanceY", 1, 2, 0, 2, 1.413528))
sketch15.addConstraint(Sketcher.Constraint("Distance", 1, 15.244966))
pocket7 = body.newObject("PartDesign::Pocket", "Pocket006")
pocket7.Profile = sketch15
pocket7.Length = 10
pocket7.Reversed = True

# Sketch on XY plane
sketch16 = body.newObject("Sketcher::SketchObject", "Sketch015")
sketch16.AttachmentSupport = (doc.getObject("XY_Plane"), [""])
sketch16.MapMode = "FlatFace"
sketch16.AttachmentOffset = App.Placement(Vector(0, 0, 3.175), App.Rotation())
add_polygon(sketch16, [(14, 1.5875), (14, -1.5875), (24, -1.5875), (24, 1.5875)])  # lines 0-3
sketch16.addConstraint(Sketcher.Constraint("Vertical", 0))
sketch16.addConstraint(Sketcher.Constraint("Horizontal", 1))
sketch16.addConstraint(Sketcher.Constraint("Vertical", 2))
sketch16.addConstraint(Sketcher.Constraint("Horizontal", 3))
sketch16.addConstraint(Sketcher.Constraint("DistanceX", 1, 1, 1, 2, 10.0))
sketch16.addConstraint(Sketcher.Constraint("DistanceX", -1, 1, 0, 2, 14.0))
sketch16.addConstraint(Sketcher.Constraint("DistanceY", 0, 2, 0, 1, 3.175))
sketch16.addConstraint(Sketcher.Constraint("DistanceY", 0, 2, -1, 1, 1.5875))
pocket8 = body.newObject("PartDesign::Pocket", "Pocket007")
pocket8.Profile = sketch16
pocket8.Length = 10

# Sketch on XY plane
sketch17 = body.newObject("Sketcher::SketchObject", "Sketch016")
sketch17.AttachmentSupport = (doc.getObject("XY_Plane"), [""])
sketch17.MapMode = "FlatFace"
add_polygon(sketch17, [(32.785844, -7.764214), (19.064116, 5.957514), (25.92498, 1.835763)])  # lines 0-2
sketch17.addConstraint(Sketcher.Constraint("Angle", 0, Q("135 deg")))
sketch17.addConstraint(Sketcher.Constraint("Distance", 2, 11.799619))
sketch17.addConstraint(Sketcher.Constraint("DistanceX", -1, 1, 1, 2, 25.92498))
sketch17.addConstraint(Sketcher.Constraint("DistanceY", 1, 2, 0, 2, 4.121751))
sketch17.addConstraint(Sketcher.Constraint("DistanceX", 0, 2, 2, 2, 13.721728))
sketch17.addConstraint(Sketcher.Constraint("DistanceY", -1, 1, 0, 2, 5.957514))
pad9 = body.newObject("PartDesign::Pad", "Pad008")
pad9.Profile = sketch17
pad9.Length = 3.175

# Sketch on XY plane
sketch18 = body.newObject("Sketcher::SketchObject", "Sketch017")
sketch18.AttachmentSupport = (doc.getObject("XY_Plane"), [""])
sketch18.MapMode = "FlatFace"
sketch18.addGeometry(Part.ArcOfCircle(Part.Circle(Vector(39.635844, -14.614214, 0), Vector(0, 0, 1), 6.85), math.radians(0), math.radians(45)), False)
sketch18.addGeometry(Part.LineSegment(Vector(44.479525, -9.770532, 0), Vector(15.80993, 18.899063, 0)), False)
sketch18.addGeometry(Part.LineSegment(Vector(15.80993, 18.899063, 0), Vector(46.485844, -7.764214, 0)), False)
sketch18.addGeometry(Part.LineSegment(Vector(46.485844, -7.764214, 0), Vector(46.485844, -14.614214, 0)), False)
sketch18.addConstraint(Sketcher.Constraint("Tangent", 0, 2, 1, 1))
sketch18.addConstraint(Sketcher.Constraint("Coincident", 1, 2, 2, 1))
sketch18.addConstraint(Sketcher.Constraint("Coincident", 2, 2, 3, 1))
sketch18.addConstraint(Sketcher.Constraint("Tangent", 3, 2, 0, 1))
sketch18.addConstraint(Sketcher.Constraint("Vertical", 3))
sketch18.addConstraint(Sketcher.Constraint("Angle", 1, Q("135 deg")))
sketch18.addConstraint(Sketcher.Constraint("Radius", 0, 6.85))
sketch18.addConstraint(Sketcher.Constraint("DistanceY", 3, 2, 3, 1, 6.85))
sketch18.addConstraint(Sketcher.Constraint("Distance", 1, 40.544931))
sketch18.addConstraint(Sketcher.Constraint("DistanceX", -1, 1, 1, 2, 15.80993))
sketch18.addConstraint(Sketcher.Constraint("DistanceY", 0, 3, -1, 1, 14.614214))
pocket9 = body.newObject("PartDesign::Pocket", "Pocket008")
pocket9.Profile = sketch18
pocket9.Length = 10
pocket9.Reversed = True

# Sketch on XY plane
sketch19 = body.newObject("Sketcher::SketchObject", "Sketch018")
sketch19.AttachmentSupport = (doc.getObject("XY_Plane"), [""])
sketch19.MapMode = "FlatFace"
sketch19.addGeometry(Part.ArcOfCircle(Part.Circle(Vector(4.463141, -29.780886, 0), Vector(0, 0, 1), 45), math.radians(64.398875), math.radians(123.76247)), False)
sketch19.addGeometry(Part.LineSegment(Vector(-20.545662, 7.629804, 0), Vector(-12.510466, 32.510755, 0)), False)
sketch19.addGeometry(Part.LineSegment(Vector(-12.510466, 32.510755, 0), Vector(24.462924, 21.153371, 0)), False)
sketch19.addGeometry(Part.LineSegment(Vector(24.462924, 21.153371, 0), Vector(23.907797, 10.801196, 0)), False)
sketch19.addConstraint(Sketcher.Constraint("Coincident", 0, 2, 1, 1))
sketch19.addConstraint(Sketcher.Constraint("Coincident", 1, 2, 2, 1))
sketch19.addConstraint(Sketcher.Constraint("Coincident", 2, 2, 3, 1))
sketch19.addConstraint(Sketcher.Constraint("Coincident", 3, 2, 0, 1))
sketch19.addConstraint(Sketcher.Constraint("Radius", 0, 45.0))
sketch19.addConstraint(Sketcher.Constraint("Distance", 2, 38.67844))
sketch19.addConstraint(Sketcher.Constraint("Distance", 3, 10.367049))
sketch19.addConstraint(Sketcher.Constraint("DistanceX", -1, 1, 0, 3, 4.463141))
sketch19.addConstraint(Sketcher.Constraint("DistanceY", -1, 1, 2, 2, 21.153371))
sketch19.addConstraint(Sketcher.Constraint("DistanceY", 0, 3, 0, 2, 37.41069))
sketch19.addConstraint(Sketcher.Constraint("DistanceY", 0, 2, 1, 2, 24.880951))
sketch19.addConstraint(Sketcher.Constraint("DistanceX", 1, 2, 2, 2, 36.97339))
sketch19.addConstraint(Sketcher.Constraint("DistanceY", 3, 2, 1, 2, 21.70956))
pocket10 = body.newObject("PartDesign::Pocket", "Pocket009")
pocket10.Profile = sketch19
pocket10.Length = 10
pocket10.Reversed = True

# Sketch on XY plane
sketch20 = body.newObject("Sketcher::SketchObject", "Sketch019")
sketch20.AttachmentSupport = (doc.getObject("XY_Plane"), [""])
sketch20.MapMode = "FlatFace"
sketch20.addGeometry(Part.ArcOfCircle(Part.Circle(Vector(2.5, 0, 0), Vector(0, 0, 1), 7.5), math.radians(-42.396827), math.radians(-5.320162)), False)
sketch20.addGeometry(Part.ArcOfCircle(Part.Circle(Vector(2.5, 0, 0), Vector(0, 0, 1), 7.5), math.radians(-5.320162), math.radians(79.359675)), False)
sketch20.addGeometry(Part.LineSegment(Vector(3.884823, 7.371042, 0), Vector(19.064116, 5.957514, 0)), False)
sketch20.addGeometry(Part.LineSegment(Vector(19.064116, 5.957514, 0), Vector(8.038695, -5.056961, 0)), False)
sketch20.addConstraint(Sketcher.Constraint("Tangent", 0, 2, 1, 1))
sketch20.addConstraint(Sketcher.Constraint("Coincident", 1, 2, 2, 1))
sketch20.addConstraint(Sketcher.Constraint("Coincident", 2, 2, 3, 1))
sketch20.addConstraint(Sketcher.Constraint("Coincident", 3, 2, 0, 1))
sketch20.addConstraint(Sketcher.Constraint("Equal", 0, 1))
sketch20.addConstraint(Sketcher.Constraint("PointOnObject", 0, 3, -1))
sketch20.addConstraint(Sketcher.Constraint("Radius", 0, 7.5))
sketch20.addConstraint(Sketcher.Constraint("DistanceX", -1, 1, 0, 3, 2.5))
sketch20.addConstraint(Sketcher.Constraint("Distance", 3, 15.584562))
sketch20.addConstraint(Sketcher.Constraint("DistanceX", -1, 1, 0, 2, 9.967691))
sketch20.addConstraint(Sketcher.Constraint("DistanceY", 3, 2, -1, 1, 5.056961))
sketch20.addConstraint(Sketcher.Constraint("DistanceY", 0, 2, 1, 2, 8.06645))
sketch20.addConstraint(Sketcher.Constraint("DistanceY", 0, 2, 2, 2, 6.652921))
pad10 = body.newObject("PartDesign::Pad", "Pad009")
pad10.Profile = sketch20
pad10.Length = 3.175

# Sketch on XY plane
sketch21 = body.newObject("Sketcher::SketchObject", "Sketch020")
sketch21.AttachmentSupport = (doc.getObject("XY_Plane"), [""])
sketch21.MapMode = "FlatFace"
add_polygon(sketch21, [(23.907797, 10.801196), (-20.71, 7.5), (-15.158213, 17.043525), (10.730397, 19.898602)])  # lines 0-3
sketch21.addConstraint(Sketcher.Constraint("DistanceY", -1, 1, 0, 2, 7.5))
sketch21.addConstraint(Sketcher.Constraint("DistanceX", 0, 2, -1, 1, 20.71))
sketch21.addConstraint(Sketcher.Constraint("DistanceX", 2, 2, 3, 2, 13.177401))
sketch21.addConstraint(Sketcher.Constraint("DistanceX", 1, 2, 2, 2, 25.888609))
sketch21.addConstraint(Sketcher.Constraint("DistanceY", 3, 2, 1, 2, 6.242329))
sketch21.addConstraint(Sketcher.Constraint("Distance", 0, 44.739756))
sketch21.addConstraint(Sketcher.Constraint("Distance", 1, 11.040888))
sketch21.addConstraint(Sketcher.Constraint("Distance", 2, 26.045567))
pocket11 = body.newObject("PartDesign::Pocket", "Pocket010")
pocket11.Profile = sketch21
pocket11.Length = 3.175
pocket11.Reversed = True

# Sketch on XY plane
sketch22 = body.newObject("Sketcher::SketchObject", "Sketch021")
sketch22.AttachmentSupport = (doc.getObject("XY_Plane"), [""])
sketch22.MapMode = "FlatFace"
add_polygon(sketch22, [(19.064116, 5.957514), (32.785844, -7.764214), (32.785844, -11.189214), (17.358435, 4.253526)])  # lines 0-3
sketch22.addConstraint(Sketcher.Constraint("Vertical", 1))
sketch22.addConstraint(Sketcher.Constraint("Perpendicular", 2, 3))
sketch22.addConstraint(Sketcher.Constraint("Angle", 0, Q("-45 deg")))
sketch22.addConstraint(Sketcher.Constraint("DistanceY", 1, 2, 1, 1, 3.425))
sketch22.addConstraint(Sketcher.Constraint("Distance", 3, 2.411001))
sketch22.addConstraint(Sketcher.Constraint("DistanceX", 2, 2, 0, 2, 15.427409))
sketch22.addConstraint(Sketcher.Constraint("DistanceX", -1, 1, 0, 2, 32.785844))
sketch22.addConstraint(Sketcher.Constraint("DistanceY", 0, 2, -1, 1, 7.764214))
pad11 = body.newObject("PartDesign::Pad", "Pad010")
pad11.Profile = sketch22
pad11.Length = 3.175

# Sketch on XY plane
sketch23 = body.newObject("Sketcher::SketchObject", "Sketch022")
sketch23.AttachmentSupport = (doc.getObject("XY_Plane"), [""])
sketch23.MapMode = "FlatFace"
add_polygon(sketch23, [(29.726172, 7.5), (-20.71, 7.5), (24.020649, 17.421002)])  # lines 0-2
sketch23.addConstraint(Sketcher.Constraint("Horizontal", 0))
sketch23.addConstraint(Sketcher.Constraint("DistanceY", -1, 1, 0, 2, 7.5))
sketch23.addConstraint(Sketcher.Constraint("DistanceX", 0, 2, -1, 1, 20.71))
sketch23.addConstraint(Sketcher.Constraint("DistanceY", -1, 1, 1, 2, 17.421002))
sketch23.addConstraint(Sketcher.Constraint("DistanceX", 0, 2, 0, 1, 50.436172))
sketch23.addConstraint(Sketcher.Constraint("DistanceX", -1, 1, 1, 2, 24.020649))
pocket12 = body.newObject("PartDesign::Pocket", "Pocket011")
pocket12.Profile = sketch23
pocket12.Length = 3.175
pocket12.Reversed = True

# Sketch on XY plane
sketch24 = body.newObject("Sketcher::SketchObject", "Sketch023")
sketch24.AttachmentSupport = (doc.getObject("XY_Plane"), [""])
sketch24.MapMode = "FlatFace"
sketch24.addGeometry(Part.LineSegment(Vector(27.208993, 7.5, 0), Vector(7.507876, 7.5, 0)), False)
sketch24.addGeometry(Part.ArcOfCircle(Part.Circle(Vector(17.358435, -2.350558, 0), Vector(0, 0, 1), 13.930793), math.radians(45), math.radians(135)), False)
sketch24.addConstraint(Sketcher.Constraint("Coincident", 0, 1, 1, 1))
sketch24.addConstraint(Sketcher.Constraint("Coincident", 1, 2, 0, 2))
sketch24.addConstraint(Sketcher.Constraint("Horizontal", 0))
sketch24.addConstraint(Sketcher.Constraint("DistanceY", -1, 1, 0, 1, 7.5))
sketch24.addConstraint(Sketcher.Constraint("Radius", 1, 13.930793))
sketch24.addConstraint(Sketcher.Constraint("DistanceX", 0, 2, 0, 1, 19.701117))
sketch24.addConstraint(Sketcher.Constraint("DistanceX", -1, 1, 1, 3, 17.358435))
pad12 = body.newObject("PartDesign::Pad", "Pad011")
pad12.Profile = sketch24
pad12.Length = 3.175

# Sketch on XY plane
sketch25 = body.newObject("Sketcher::SketchObject", "Sketch024")
sketch25.AttachmentSupport = (doc.getObject("XY_Plane"), [""])
sketch25.MapMode = "FlatFace"
sketch25.addGeometry(Part.Circle(Vector(39.635844, -14.614214, 0), Vector(0, 0, 1), 6.716159), False)
sketch25.addGeometry(Part.Circle(Vector(39.635844, -14.614214, 0), Vector(0, 0, 1), 3.1875), False)
sketch25.addConstraint(Sketcher.Constraint("Coincident", 1, 3, 0, 3))
sketch25.addConstraint(Sketcher.Constraint("Diameter", 1, 6.375))
sketch25.addConstraint(Sketcher.Constraint("Diameter", 0, 13.432318))
sketch25.addConstraint(Sketcher.Constraint("DistanceX", -1, 1, 0, 3, 39.635844))
sketch25.addConstraint(Sketcher.Constraint("DistanceY", 0, 3, -1, 1, 14.614214))
pad13 = body.newObject("PartDesign::Pad", "Pad012")
pad13.Profile = sketch25
pad13.Length = 3.175

doc.recompute()
